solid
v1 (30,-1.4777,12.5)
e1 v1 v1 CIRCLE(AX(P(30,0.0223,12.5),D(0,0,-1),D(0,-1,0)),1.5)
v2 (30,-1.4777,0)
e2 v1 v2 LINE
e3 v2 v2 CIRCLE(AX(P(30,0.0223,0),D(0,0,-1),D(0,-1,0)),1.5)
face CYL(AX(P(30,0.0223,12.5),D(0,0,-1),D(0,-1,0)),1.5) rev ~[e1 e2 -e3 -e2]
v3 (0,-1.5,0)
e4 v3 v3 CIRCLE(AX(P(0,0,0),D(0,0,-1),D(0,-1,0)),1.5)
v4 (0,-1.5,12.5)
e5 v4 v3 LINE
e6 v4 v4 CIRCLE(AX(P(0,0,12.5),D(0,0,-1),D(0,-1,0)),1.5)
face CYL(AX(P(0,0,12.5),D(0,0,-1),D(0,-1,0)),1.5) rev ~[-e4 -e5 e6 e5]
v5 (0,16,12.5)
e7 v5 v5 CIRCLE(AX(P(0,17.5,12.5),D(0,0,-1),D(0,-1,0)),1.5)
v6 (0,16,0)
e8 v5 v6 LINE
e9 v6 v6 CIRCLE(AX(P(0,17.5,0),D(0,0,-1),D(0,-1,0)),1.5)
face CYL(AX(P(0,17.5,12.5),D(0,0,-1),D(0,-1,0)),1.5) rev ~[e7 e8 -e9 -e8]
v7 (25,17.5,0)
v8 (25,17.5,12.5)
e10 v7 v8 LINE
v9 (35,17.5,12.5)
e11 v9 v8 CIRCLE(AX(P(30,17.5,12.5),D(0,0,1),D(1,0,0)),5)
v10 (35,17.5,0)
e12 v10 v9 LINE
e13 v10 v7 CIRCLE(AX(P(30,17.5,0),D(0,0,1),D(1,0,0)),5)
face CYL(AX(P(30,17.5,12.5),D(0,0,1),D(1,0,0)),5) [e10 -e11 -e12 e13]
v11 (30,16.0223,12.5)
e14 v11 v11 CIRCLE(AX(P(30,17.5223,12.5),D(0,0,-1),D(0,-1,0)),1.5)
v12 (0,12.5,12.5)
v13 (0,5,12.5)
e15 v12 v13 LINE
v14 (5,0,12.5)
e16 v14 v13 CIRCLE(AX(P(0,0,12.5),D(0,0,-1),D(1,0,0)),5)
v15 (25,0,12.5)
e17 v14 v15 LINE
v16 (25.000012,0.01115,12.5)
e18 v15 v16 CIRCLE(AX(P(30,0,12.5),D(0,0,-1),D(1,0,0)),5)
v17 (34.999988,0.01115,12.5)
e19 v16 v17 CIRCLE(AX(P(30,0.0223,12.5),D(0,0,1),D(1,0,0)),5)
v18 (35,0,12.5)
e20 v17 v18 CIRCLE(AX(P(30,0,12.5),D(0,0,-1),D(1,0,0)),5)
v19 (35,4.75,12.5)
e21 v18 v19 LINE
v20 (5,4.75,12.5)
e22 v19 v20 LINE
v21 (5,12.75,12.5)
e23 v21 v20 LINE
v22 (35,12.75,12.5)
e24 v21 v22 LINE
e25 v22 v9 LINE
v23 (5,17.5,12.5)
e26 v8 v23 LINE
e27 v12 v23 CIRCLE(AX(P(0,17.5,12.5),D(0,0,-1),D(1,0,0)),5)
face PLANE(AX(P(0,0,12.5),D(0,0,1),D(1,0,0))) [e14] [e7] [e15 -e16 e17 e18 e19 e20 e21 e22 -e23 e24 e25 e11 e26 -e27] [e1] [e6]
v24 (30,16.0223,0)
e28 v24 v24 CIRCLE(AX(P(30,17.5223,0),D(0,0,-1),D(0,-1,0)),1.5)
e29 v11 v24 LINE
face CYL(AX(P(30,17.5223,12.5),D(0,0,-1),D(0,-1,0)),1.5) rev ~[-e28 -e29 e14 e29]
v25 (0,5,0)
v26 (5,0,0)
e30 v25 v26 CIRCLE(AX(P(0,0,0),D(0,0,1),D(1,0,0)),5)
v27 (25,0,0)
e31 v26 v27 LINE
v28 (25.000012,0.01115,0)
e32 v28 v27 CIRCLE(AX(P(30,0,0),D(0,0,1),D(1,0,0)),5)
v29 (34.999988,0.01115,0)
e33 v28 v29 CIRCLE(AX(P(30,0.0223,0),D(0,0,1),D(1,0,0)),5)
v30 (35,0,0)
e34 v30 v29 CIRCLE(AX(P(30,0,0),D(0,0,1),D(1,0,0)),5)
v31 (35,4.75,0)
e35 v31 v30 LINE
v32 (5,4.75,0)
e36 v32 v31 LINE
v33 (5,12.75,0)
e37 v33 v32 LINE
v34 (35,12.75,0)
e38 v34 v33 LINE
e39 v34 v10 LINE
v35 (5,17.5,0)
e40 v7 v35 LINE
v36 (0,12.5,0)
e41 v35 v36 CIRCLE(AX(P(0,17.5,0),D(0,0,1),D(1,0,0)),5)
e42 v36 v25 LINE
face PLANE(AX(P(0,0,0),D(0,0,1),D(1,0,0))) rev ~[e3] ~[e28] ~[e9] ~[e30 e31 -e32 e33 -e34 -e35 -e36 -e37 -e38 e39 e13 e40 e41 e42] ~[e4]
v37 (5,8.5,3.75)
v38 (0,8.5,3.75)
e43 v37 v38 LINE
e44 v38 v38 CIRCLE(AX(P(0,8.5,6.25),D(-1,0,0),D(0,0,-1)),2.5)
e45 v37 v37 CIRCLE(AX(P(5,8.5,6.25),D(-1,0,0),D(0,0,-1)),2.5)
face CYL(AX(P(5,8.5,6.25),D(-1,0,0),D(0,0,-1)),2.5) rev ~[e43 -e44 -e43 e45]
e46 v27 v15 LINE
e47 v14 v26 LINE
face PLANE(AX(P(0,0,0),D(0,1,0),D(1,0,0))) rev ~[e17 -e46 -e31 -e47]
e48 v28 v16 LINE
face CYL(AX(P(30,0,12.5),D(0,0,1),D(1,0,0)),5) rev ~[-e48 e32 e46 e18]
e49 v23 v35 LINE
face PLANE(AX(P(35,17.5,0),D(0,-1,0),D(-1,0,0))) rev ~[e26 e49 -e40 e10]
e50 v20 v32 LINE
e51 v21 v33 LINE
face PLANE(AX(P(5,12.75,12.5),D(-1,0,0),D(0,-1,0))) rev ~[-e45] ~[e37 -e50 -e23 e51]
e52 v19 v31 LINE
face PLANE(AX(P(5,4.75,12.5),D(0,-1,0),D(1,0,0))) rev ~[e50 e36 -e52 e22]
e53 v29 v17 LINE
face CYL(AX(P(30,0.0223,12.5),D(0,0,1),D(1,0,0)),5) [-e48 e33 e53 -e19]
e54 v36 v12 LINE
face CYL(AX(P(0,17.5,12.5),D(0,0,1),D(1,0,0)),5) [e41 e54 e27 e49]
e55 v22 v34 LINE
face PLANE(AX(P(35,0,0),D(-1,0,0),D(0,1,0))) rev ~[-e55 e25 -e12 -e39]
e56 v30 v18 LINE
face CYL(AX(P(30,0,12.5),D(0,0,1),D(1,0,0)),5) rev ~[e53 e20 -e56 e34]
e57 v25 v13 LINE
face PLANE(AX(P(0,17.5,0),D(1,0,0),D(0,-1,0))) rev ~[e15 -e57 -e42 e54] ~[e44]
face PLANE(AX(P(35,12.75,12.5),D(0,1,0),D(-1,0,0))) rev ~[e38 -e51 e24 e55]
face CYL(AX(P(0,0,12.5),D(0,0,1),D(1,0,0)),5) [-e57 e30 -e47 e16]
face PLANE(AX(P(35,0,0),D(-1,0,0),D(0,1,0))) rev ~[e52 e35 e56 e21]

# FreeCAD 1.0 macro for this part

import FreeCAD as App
import Part
import Sketcher
from FreeCAD import Vector

doc = App.newDocument("Part")
body = doc.addObject("PartDesign::Body", "Body")
body.AllowCompound = True

# Sketch on XY plane
sketch1 = body.newObject("Sketcher::SketchObject", "Sketch")
sketch1.AttachmentSupport = (doc.getObject("XY_Plane"), [""])
sketch1.MapMode = "FlatFace"
sketch1.addGeometry([
    Part.LineSegment(Vector(0, 17.5, 0), Vector(0, 0, 0)),
    Part.LineSegment(Vector(0, 0, 0), Vector(35, 0, 0)),
    Part.LineSegment(Vector(35, 0, 0), Vector(35, 17.5, 0)),
    Part.LineSegment(Vector(35, 17.5, 0), Vector(0, 17.5, 0)),
], False)
sketch1.addConstraint([
    Sketcher.Constraint("Coincident", 0, 2, 1, 1),
    Sketcher.Constraint("Coincident", 1, 2, 2, 1),
    Sketcher.Constraint("Coincident", 2, 2, 3, 1),
    Sketcher.Constraint("Coincident", 3, 2, 0, 1),
    Sketcher.Constraint("Vertical", 0),
    Sketcher.Constraint("Horizontal", 1),
    Sketcher.Constraint("Vertical", 2),
    Sketcher.Constraint("Horizontal", 3),
    Sketcher.Constraint("Coincident", 0, 2, -1, 1),
    Sketcher.Constraint("DistanceX", 1, 1, 1, 2, 35.0),
    Sketcher.Constraint("DistanceY", 0, 2, 0, 1, 17.5),
])
pad1 = body.newObject("PartDesign::Pad", "Pad")
pad1.Profile = sketch1
pad1.Length = 12.5

# Sketch on XY plane
sketch2 = body.newObject("Sketcher::SketchObject", "Sketch001")
sketch2.AttachmentSupport = (doc.getObject("XY_Plane"), [""])
sketch2.MapMode = "FlatFace"
sketch2.AttachmentOffset = App.Placement(Vector(0, 0, 12.5), App.Rotation())
sketch2.addGeometry([
    Part.LineSegment(Vector(5, 4.75, 0), Vector(35, 4.75, 0)),
    Part.LineSegment(Vector(35, 4.75, 0), Vector(35, 12.75, 0)),
    Part.LineSegment(Vector(35, 12.75, 0), Vector(5, 12.75, 0)),
    Part.LineSegment(Vector(5, 12.75, 0), Vector(5, 4.75, 0)),
], False)
sketch2.addConstraint([
    Sketcher.Constraint("Coincident", 0, 2, 1, 1),
    Sketcher.Constraint("Coincident", 1, 2, 2, 1),
    Sketcher.Constraint("Coincident", 2, 2, 3, 1),
    Sketcher.Constraint("Coincident", 3, 2, 0, 1),
    Sketcher.Constraint("Horizontal", 0),
    Sketcher.Constraint("Vertical", 1),
    Sketcher.Constraint("Horizontal", 2),
    Sketcher.Constraint("Vertical", 3),
    Sketcher.Constraint("DistanceX", 0, 1, 0, 2, 30.0),
    Sketcher.Constraint("DistanceY", 1, 1, 1, 2, 8.0),
    Sketcher.Constraint("DistanceY", -1, 1, 0, 2, 4.75),
    Sketcher.Constraint("DistanceX", -1, 1, 0, 2, 35.0),
])
pocket1 = body.newObject("PartDesign::Pocket", "Pocket")
pocket1.Profile = sketch2
pocket1.Length = 12.5

# Sketch on XY plane
sketch3 = body.newObject("Sketcher::SketchObject", "Sketch002")
sketch3.AttachmentSupport = (doc.getObject("XY_Plane"), [""])
sketch3.MapMode = "FlatFace"
sketch3.AttachmentOffset = App.Placement(Vector(0, 0, 12.5), App.Rotation())
sketch3.addGeometry([
    Part.Circle(Vector(0, 17.5, 0), Vector(0, 0, 1), 5),
    Part.Circle(Vector(30, 17.5, 0), Vector(0, 0, 1), 5),
    Part.Circle(Vector(0, 0, 0), Vector(0, 0, 1), 5),
    Part.Circle(Vector(30, 0, 0), Vector(0, 0, 1), 5),
], False)
sketch3.addConstraint([
    Sketcher.Constraint("Coincident", 2, 3, -1, 1),
    Sketcher.Constraint("Equal", 0, 1),
    Sketcher.Constraint("Equal", 1, 2),
    Sketcher.Constraint("Equal", 2, 3),
    Sketcher.Constraint("PointOnObject", 0, 3, -2),
    Sketcher.Constraint("PointOnObject", 3, 3, -1),
    Sketcher.Constraint("Horizontal", 0, 3, 1, 3),
    Sketcher.Constraint("Vertical", 1, 3, 3, 3),
    Sketcher.Constraint("Diameter", 0, 10.0),
    Sketcher.Constraint("DistanceX", -1, 1, 1, 3, 30.0),
    Sketcher.Constraint("DistanceY", -1, 1, 0, 3, 17.5),
])
pocket2 = body.newObject("PartDesign::Pocket", "Pocket001")
pocket2.Profile = sketch3
pocket2.Length = 12.5

# Sketch on XY plane
sketch4 = body.newObject("Sketcher::SketchObject", "Sketch003")
sketch4.AttachmentSupport = (doc.getObject("XY_Plane"), [""])
sketch4.MapMode = "FlatFace"
sketch4.AttachmentOffset = App.Placement(Vector(0, 0, 12.5), App.Rotation())
sketch4.addGeometry([
    Part.Circle(Vector(30, 17.5, 0), Vector(0, 0, 1), 5),
    Part.Circle(Vector(30, 0.0223, 0), Vector(0, 0, 1), 5),
    Part.Circle(Vector(0, 0, 0), Vector(0, 0, 1), 5),
    Part.Circle(Vector(0, 17.5, 0), Vector(0, 0, 1), 5),
], False)
sketch4.addConstraint([
    Sketcher.Constraint("Coincident", 2, 3, -1, 1),
    Sketcher.Constraint("Equal", 0, 1),
    Sketcher.Constraint("Equal", 1, 2),
    Sketcher.Constraint("Equal", 2, 3),
    Sketcher.Constraint("PointOnObject", 3, 3, -2),
    Sketcher.Constraint("Horizontal", 0, 3, 3, 3),
    Sketcher.Constraint("Vertical", 0, 3, 1, 3),
    Sketcher.Constraint("Diameter", 0, 10.0),
    Sketcher.Constraint("DistanceX", -1, 1, 0, 3, 30.0),
    Sketcher.Constraint("DistanceY", -1, 1, 0, 3, 17.5),
    Sketcher.Constraint("DistanceY", -1, 1, 1, 3, 0.0223),
])
pad2 = body.newObject("PartDesign::Pad", "Pad001")
pad2.Profile = sketch4
pad2.Length = 12.5
pad2.Reversed = True

# Sketch on XY plane
sketch5 = body.newObject("Sketcher::SketchObject", "Sketch004")
sketch5.AttachmentSupport = (doc.getObject("XY_Plane"), [""])
sketch5.MapMode = "FlatFace"
sketch5.AttachmentOffset = App.Placement(Vector(0, 0, 12.5), App.Rotation())
sketch5.addGeometry([
    Part.Circle(Vector(0, 0, 0), Vector(0, 0, 1), 1.5),
    Part.Circle(Vector(0, 17.5, 0), Vector(0, 0, 1), 1.5),
    Part.Circle(Vector(30, 17.5223, 0), Vector(0, 0, 1), 1.5),
    Part.Circle(Vector(30, 0.0223, 0), Vector(0, 0, 1), 1.5),
], False)
sketch5.addConstraint([
    Sketcher.Constraint("Coincident", 0, 3, -1, 1),
    Sketcher.Constraint("Equal", 0, 1),
    Sketcher.Constraint("Equal", 1, 2),
    Sketcher.Constraint("Equal", 2, 3),
    Sketcher.Constraint("PointOnObject", 1, 3, -2),
    Sketcher.Constraint("Vertical", 2, 3, 3, 3),
    Sketcher.Constraint("Diameter", 0, 3.0),
    Sketcher.Constraint("DistanceX", -1, 1, 2, 3, 30.0),
    Sketcher.Constraint("DistanceY", -1, 1, 1, 3, 17.5),
    Sketcher.Constraint("DistanceY", 3, 3, 2, 3, 17.5),
    Sketcher.Constraint("DistanceY", -1, 1, 2, 3, 17.5223),
])
doc.recompute()
hole = body.newObject("PartDesign::Hole", "Hole")
hole.Profile = sketch5
hole.ThreadType = "None"
hole.Diameter = 3
hole.DepthType = "ThroughAll"

# Sketch on YZ plane
sketch6 = body.newObject("Sketcher::SketchObject", "Sketch005")
sketch6.AttachmentSupport = (doc.getObject("YZ_Plane"), [""])
sketch6.MapMode = "FlatFace"
sketch6.AttachmentOffset = App.Placement(Vector(0, 0, 5), App.Rotation())
sketch6.addGeometry(Part.Circle(Vector(8.5, 6.25, 0), Vector(0, 0, 1), 2.5), False)
sketch6.addConstraint([
    Sketcher.Constraint("Diameter", 0, 5.0),
    Sketcher.Constraint("DistanceX", -1, 1, 0, 3, 8.5),
    Sketcher.Constraint("DistanceY", -1, 1, 0, 3, 6.25),
])
doc.recompute()
hole2 = body.newObject("PartDesign::Hole", "Hole001")
hole2.Profile = sketch6
hole2.ThreadType = "None"
hole2.Diameter = 5
hole2.DepthType = "ThroughAll"

# Sketch on YZ plane
sketch7 = body.newObject("Sketcher::SketchObject", "Sketch006")
sketch7.AttachmentSupport = (doc.getObject("YZ_Plane"), [""])
sketch7.MapMode = "FlatFace"
sketch7.AttachmentOffset = App.Placement(Vector(0, 0, 5), App.Rotation())
sketch7.addGeometry([
    Part.LineSegment(Vector(4.75, 12.5, 0), Vector(4.75, 0, 0)),
    Part.LineSegment(Vector(4.75, 0, 0), Vector(12.75, 0, 0)),
    Part.LineSegment(Vector(12.75, 0, 0), Vector(12.75, 12.5, 0)),
    Part.LineSegment(Vector(12.75, 12.5, 0), Vector(4.75, 12.5, 0)),
], False)
sketch7.addConstraint([
    Sketcher.Constraint("Coincident", 0, 2, 1, 1),
    Sketcher.Constraint("Coincident", 1, 2, 2, 1),
    Sketcher.Constraint("Coincident", 2, 2, 3, 1),
    Sketcher.Constraint("Coincident", 3, 2, 0, 1),
    Sketcher.Constraint("Vertical", 0),
    Sketcher.Constraint("Horizontal", 1),
    Sketcher.Constraint("Vertical", 2),
    Sketcher.Constraint("Horizontal", 3),
    Sketcher.Constraint("PointOnObject", 0, 2, -1),
    Sketcher.Constraint("DistanceX", 1, 1, 1, 2, 8.0),
    Sketcher.Constraint("DistanceY", 0, 2, 0, 1, 12.5),
    Sketcher.Constraint("DistanceX", -1, 1, 0, 2, 4.75),
])
pocket3 = body.newObject("PartDesign::Pocket", "Pocket002")
pocket3.Profile = sketch7
pocket3.Length = 30
pocket3.Reversed = True

doc.recompute()
